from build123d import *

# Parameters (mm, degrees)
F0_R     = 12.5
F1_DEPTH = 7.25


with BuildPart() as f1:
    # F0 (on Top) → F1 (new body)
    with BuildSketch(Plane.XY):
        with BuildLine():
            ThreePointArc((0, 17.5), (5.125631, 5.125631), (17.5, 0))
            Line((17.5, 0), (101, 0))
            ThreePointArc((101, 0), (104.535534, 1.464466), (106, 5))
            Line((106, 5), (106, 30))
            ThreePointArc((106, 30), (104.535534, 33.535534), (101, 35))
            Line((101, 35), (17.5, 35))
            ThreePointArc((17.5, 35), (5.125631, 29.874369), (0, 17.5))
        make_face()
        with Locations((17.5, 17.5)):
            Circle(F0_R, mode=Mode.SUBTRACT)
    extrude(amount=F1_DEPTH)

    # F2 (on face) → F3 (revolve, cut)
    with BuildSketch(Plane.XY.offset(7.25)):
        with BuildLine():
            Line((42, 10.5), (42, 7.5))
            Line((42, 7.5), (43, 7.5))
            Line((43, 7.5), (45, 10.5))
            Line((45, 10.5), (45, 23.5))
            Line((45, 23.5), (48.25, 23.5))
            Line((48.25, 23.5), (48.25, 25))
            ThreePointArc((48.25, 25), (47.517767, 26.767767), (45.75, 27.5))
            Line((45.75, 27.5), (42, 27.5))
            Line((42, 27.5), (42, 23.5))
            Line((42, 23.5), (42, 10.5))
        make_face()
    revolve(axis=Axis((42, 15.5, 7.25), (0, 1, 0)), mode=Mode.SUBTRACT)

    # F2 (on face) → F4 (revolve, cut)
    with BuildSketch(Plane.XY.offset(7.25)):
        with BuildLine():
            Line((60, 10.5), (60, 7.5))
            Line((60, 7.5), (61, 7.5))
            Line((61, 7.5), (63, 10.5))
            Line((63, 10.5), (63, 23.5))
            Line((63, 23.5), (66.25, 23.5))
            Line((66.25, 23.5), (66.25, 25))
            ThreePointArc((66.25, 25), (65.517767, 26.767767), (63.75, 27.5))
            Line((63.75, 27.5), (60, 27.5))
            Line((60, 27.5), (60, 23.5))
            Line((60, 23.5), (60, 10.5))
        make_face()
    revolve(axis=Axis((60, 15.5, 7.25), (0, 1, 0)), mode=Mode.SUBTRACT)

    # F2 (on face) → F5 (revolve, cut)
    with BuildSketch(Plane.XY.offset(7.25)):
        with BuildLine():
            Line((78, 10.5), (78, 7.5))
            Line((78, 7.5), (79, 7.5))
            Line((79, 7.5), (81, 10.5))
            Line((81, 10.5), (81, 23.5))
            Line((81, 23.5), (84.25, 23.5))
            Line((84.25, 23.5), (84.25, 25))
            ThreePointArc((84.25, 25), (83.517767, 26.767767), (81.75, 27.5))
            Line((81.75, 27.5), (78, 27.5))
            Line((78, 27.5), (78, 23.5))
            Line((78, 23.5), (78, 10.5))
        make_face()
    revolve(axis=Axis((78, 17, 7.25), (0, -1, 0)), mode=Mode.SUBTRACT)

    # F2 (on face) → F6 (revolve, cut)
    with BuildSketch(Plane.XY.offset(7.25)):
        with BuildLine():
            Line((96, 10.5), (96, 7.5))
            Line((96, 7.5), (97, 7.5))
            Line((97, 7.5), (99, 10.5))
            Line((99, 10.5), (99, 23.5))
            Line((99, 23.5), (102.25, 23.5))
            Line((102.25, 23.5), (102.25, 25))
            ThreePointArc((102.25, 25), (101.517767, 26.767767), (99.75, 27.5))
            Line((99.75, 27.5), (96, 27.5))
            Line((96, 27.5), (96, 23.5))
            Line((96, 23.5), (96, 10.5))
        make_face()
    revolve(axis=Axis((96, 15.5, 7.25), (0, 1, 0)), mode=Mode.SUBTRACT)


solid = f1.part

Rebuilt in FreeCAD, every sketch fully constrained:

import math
import FreeCAD as App
import Part
import Sketcher

V = App.Vector
Q = App.Units.Quantity

doc = App.newDocument("Part")
body = doc.addObject("PartDesign::Body", "Body")

# Sketch on XY plane
sketch1 = body.newObject("Sketcher::SketchObject", "Sketch")
sketch1.AttachmentSupport = (doc.getObject("XY_Plane"), [""])
sketch1.MapMode = "FlatFace"
sketch1.addGeometry([
    Part.ArcOfCircle(Part.Circle(V(17.5, 17.5, 0), V(0, 0, 1), 17.5), math.radians(180), math.radians(270)),  # 0
    Part.LineSegment(V(17.5, 0, 0), V(101, 0, 0)),  # 1
    Part.ArcOfCircle(Part.Circle(V(101, 5, 0), V(0, 0, 1), 5), math.radians(-90), math.radians(0)),  # 2
    Part.LineSegment(V(106, 5, 0), V(106, 30, 0)),  # 3
    Part.ArcOfCircle(Part.Circle(V(101, 30, 0), V(0, 0, 1), 5), math.radians(0), math.radians(90)),  # 4
    Part.LineSegment(V(101, 35, 0), V(17.5, 35, 0)),  # 5
    Part.ArcOfCircle(Part.Circle(V(17.5, 17.5, 0), V(0, 0, 1), 17.5), math.radians(90), math.radians(180)),  # 6
    Part.Circle(V(17.5, 17.5, 0), V(0, 0, 1), 12.5),  # 7
], False)
sketch1.addConstraint([
    Sketcher.Constraint("Tangent", 0, 2, 1, 1),
    Sketcher.Constraint("Tangent", 1, 2, 2, 1),
    Sketcher.Constraint("Tangent", 2, 2, 3, 1),
    Sketcher.Constraint("Tangent", 3, 2, 4, 1),
    Sketcher.Constraint("Tangent", 4, 2, 5, 1),
    Sketcher.Constraint("Tangent", 5, 2, 6, 1),
    Sketcher.Constraint("Tangent", 6, 2, 0, 1),
    Sketcher.Constraint("Horizontal", 1),
    Sketcher.Constraint("Vertical", 3),
    Sketcher.Constraint("Horizontal", 5),
    Sketcher.Constraint("Coincident", 7, 3, 0, 3),
    Sketcher.Constraint("Equal", 2, 4),
    Sketcher.Constraint("Equal", 0, 6),
    Sketcher.Constraint("PointOnObject", 0, 2, -1),
    Sketcher.Constraint("PointOnObject", 6, 2, -2),
    Sketcher.Constraint("Horizontal", 7, 3, 6, 2),
    Sketcher.Constraint("Diameter", 7, Q("25 mm")),
    Sketcher.Constraint("Radius", 2, Q("5 mm")),
    Sketcher.Constraint("Radius", 0, Q("17.499999 mm")),
    Sketcher.Constraint("DistanceX", 1, 1, 1, 2, Q("83.5 mm")),
])
pad1 = body.newObject("PartDesign::Pad", "Pad")
pad1.Profile = sketch1
pad1.Length = 7.25

# Sketch on XY plane
sketch2 = body.newObject("Sketcher::SketchObject", "Sketch001")
sketch2.AttachmentSupport = (doc.getObject("XY_Plane"), [""])
sketch2.MapMode = "FlatFace"
sketch2.AttachmentOffset = App.Placement(V(0, 0, 7.25), App.Rotation())
sketch2.addGeometry([
    Part.LineSegment(V(42, 7.5, 0), V(43, 7.5, 0)),  # 0
    Part.LineSegment(V(43, 7.5, 0), V(45, 10.5, 0)),  # 1
    Part.LineSegment(V(45, 10.5, 0), V(45, 23.5, 0)),  # 2
    Part.LineSegment(V(45, 23.5, 0), V(48.2, 23.5, 0)),  # 3
    Part.LineSegment(V(48.2, 23.5, 0), V(48.2, 25, 0)),  # 4
    Part.ArcOfCircle(Part.Circle(V(45.8, 25, 0), V(0, 0, 1), 2.5), math.radians(0), math.radians(90)),  # 5
    Part.LineSegment(V(45.8, 27.5, 0), V(42, 27.5, 0)),  # 6
    Part.LineSegment(V(42, 27.5, 0), V(42, 7.5, 0)),  # 7
], False)
sketch2.addGeometry(Part.LineSegment(V(42, 7.5, 0), V(42, 27.5, 0)), True)  # axis
sketch2.addConstraint([
    Sketcher.Constraint("Coincident", 0, 2, 1, 1),
    Sketcher.Constraint("Coincident", 1, 2, 2, 1),
    Sketcher.Constraint("Coincident", 2, 2, 3, 1),
    Sketcher.Constraint("Coincident", 3, 2, 4, 1),
    Sketcher.Constraint("Tangent", 4, 2, 5, 1),
    Sketcher.Constraint("Tangent", 5, 2, 6, 1),
    Sketcher.Constraint("Coincident", 6, 2, 7, 1),
    Sketcher.Constraint("Coincident", 7, 2, 0, 1),
    Sketcher.Constraint("Horizontal", 0),
    Sketcher.Constraint("Vertical", 2),
    Sketcher.Constraint("Horizontal", 3),
    Sketcher.Constraint("Vertical", 4),
    Sketcher.Constraint("Horizontal", 6),
    Sketcher.Constraint("Vertical", 7),
    Sketcher.Constraint("Vertical", 8),
    Sketcher.Constraint("Coincident", 8, 1, 7, 2),
    Sketcher.Constraint("Horizontal", 5, 2, 8, 2),
    Sketcher.Constraint("Radius", 5, Q("2.5 mm")),
    Sketcher.Constraint("DistanceX", 0, 1, 0, 2, Q("1 mm")),
    Sketcher.Constraint("DistanceY", 2, 1, 2, 2, Q("13 mm")),
    Sketcher.Constraint("DistanceY", 7, 2, 7, 1, Q("20 mm")),
    Sketcher.Constraint("DistanceY", 4, 1, 4, 2, Q("1.5 mm")),
    Sketcher.Constraint("DistanceY", -1, 1, 5, 3, Q("25 mm")),
    Sketcher.Constraint("DistanceX", -1, 1, 0, 2, Q("43 mm")),
    Sketcher.Constraint("DistanceX", -1, 1, 1, 2, Q("45 mm")),
    Sketcher.Constraint("DistanceX", 3, 1, 3, 2, Q("3.25 mm")),
])
groove = body.newObject("PartDesign::Groove", "Groove")
groove.Profile = sketch2
groove.ReferenceAxis = (sketch2, ["Axis0"])
groove.Angle = 360

# Sketch on XY plane
sketch3 = body.newObject("Sketcher::SketchObject", "Sketch002")
sketch3.AttachmentSupport = (doc.getObject("XY_Plane"), [""])
sketch3.MapMode = "FlatFace"
sketch3.AttachmentOffset = App.Placement(V(0, 0, 7.25), App.Rotation())
sketch3.addGeometry([
    Part.LineSegment(V(60, 7.5, 0), V(61, 7.5, 0)),  # 0
    Part.LineSegment(V(61, 7.5, 0), V(63, 10.5, 0)),  # 1
    Part.LineSegment(V(63, 10.5, 0), V(63, 23.5, 0)),  # 2
    Part.LineSegment(V(63, 23.5, 0), V(66.2, 23.5, 0)),  # 3
    Part.LineSegment(V(66.2, 23.5, 0), V(66.2, 25, 0)),  # 4
    Part.ArcOfCircle(Part.Circle(V(63.8, 25, 0), V(0, 0, 1), 2.5), math.radians(0), math.radians(90)),  # 5
    Part.LineSegment(V(63.8, 27.5, 0), V(60, 27.5, 0)),  # 6
    Part.LineSegment(V(60, 27.5, 0), V(60, 7.5, 0)),  # 7
], False)
sketch3.addGeometry(Part.LineSegment(V(60, 7.5, 0), V(60, 27.5, 0)), True)  # axis
sketch3.addConstraint([
    Sketcher.Constraint("Coincident", 0, 2, 1, 1),
    Sketcher.Constraint("Coincident", 1, 2, 2, 1),
    Sketcher.Constraint("Coincident", 2, 2, 3, 1),
    Sketcher.Constraint("Coincident", 3, 2, 4, 1),
    Sketcher.Constraint("Tangent", 4, 2, 5, 1),
    Sketcher.Constraint("Tangent", 5, 2, 6, 1),
    Sketcher.Constraint("Coincident", 6, 2, 7, 1),
    Sketcher.Constraint("Coincident", 7, 2, 0, 1),
    Sketcher.Constraint("Horizontal", 0),
    Sketcher.Constraint("Vertical", 2),
    Sketcher.Constraint("Horizontal", 3),
    Sketcher.Constraint("Vertical", 4),
    Sketcher.Constraint("Horizontal", 6),
    Sketcher.Constraint("Vertical", 7),
    Sketcher.Constraint("Vertical", 8),
    Sketcher.Constraint("Coincident", 8, 1, 7, 2),
    Sketcher.Constraint("Horizontal", 5, 2, 8, 2),
    Sketcher.Constraint("Radius", 5, Q("2.5 mm")),
    Sketcher.Constraint("DistanceX", 0, 1, 0, 2, Q("1 mm")),
    Sketcher.Constraint("DistanceY", 2, 1, 2, 2, Q("13 mm")),
    Sketcher.Constraint("DistanceY", 7, 2, 7, 1, Q("20 mm")),
    Sketcher.Constraint("DistanceY", 4, 1, 4, 2, Q("1.5 mm")),
    Sketcher.Constraint("DistanceY", -1, 1, 5, 3, Q("25 mm")),
    Sketcher.Constraint("DistanceX", -1, 1, 0, 2, Q("61 mm")),
    Sketcher.Constraint("DistanceX", -1, 1, 1, 2, Q("63 mm")),
    Sketcher.Constraint("DistanceX", 3, 1, 3, 2, Q("3.25 mm")),
])
groove2 = body.newObject("PartDesign::Groove", "Groove001")
groove2.Profile = sketch3
groove2.ReferenceAxis = (sketch3, ["Axis0"])
groove2.Angle = 360

# Sketch on XY plane
sketch4 = body.newObject("Sketcher::SketchObject", "Sketch003")
sketch4.AttachmentSupport = (doc.getObject("XY_Plane"), [""])
sketch4.MapMode = "FlatFace"
sketch4.AttachmentOffset = App.Placement(V(0, 0, 7.25), App.Rotation())
sketch4.addGeometry([
    Part.LineSegment(V(78, 7.5, 0), V(79, 7.5, 0)),  # 0
    Part.LineSegment(V(79, 7.5, 0), V(81, 10.5, 0)),  # 1
    Part.LineSegment(V(81, 10.5, 0), V(81, 23.5, 0)),  # 2
    Part.LineSegment(V(81, 23.5, 0), V(84.2, 23.5, 0)),  # 3
    Part.LineSegment(V(84.2, 23.5, 0), V(84.2, 25, 0)),  # 4
    Part.ArcOfCircle(Part.Circle(V(81.8, 25, 0), V(0, 0, 1), 2.5), math.radians(0), math.radians(90)),  # 5
    Part.LineSegment(V(81.8, 27.5, 0), V(78, 27.5, 0)),  # 6
    Part.LineSegment(V(78, 27.5, 0), V(78, 7.5, 0)),  # 7
], False)
sketch4.addGeometry(Part.LineSegment(V(78, 27.5, 0), V(78, 7.5, 0)), True)  # axis
sketch4.addConstraint([
    Sketcher.Constraint("Coincident", 0, 2, 1, 1),
    Sketcher.Constraint("Coincident", 1, 2, 2, 1),
    Sketcher.Constraint("Coincident", 2, 2, 3, 1),
    Sketcher.Constraint("Coincident", 3, 2, 4, 1),
    Sketcher.Constraint("Tangent", 4, 2, 5, 1),
    Sketcher.Constraint("Tangent", 5, 2, 6, 1),
    Sketcher.Constraint("Coincident", 6, 2, 7, 1),
    Sketcher.Constraint("Coincident", 7, 2, 0, 1),
    Sketcher.Constraint("Horizontal", 0),
    Sketcher.Constraint("Vertical", 2),
    Sketcher.Constraint("Horizontal", 3),
    Sketcher.Constraint("Vertical", 4),
    Sketcher.Constraint("Horizontal", 6),
    Sketcher.Constraint("Vertical", 7),
    Sketcher.Constraint("Vertical", 8),
    Sketcher.Constraint("Coincident", 8, 1, 6, 2),
    Sketcher.Constraint("Horizontal", 0, 2, 8, 2),
    Sketcher.Constraint("Radius", 5, Q("2.5 mm")),
    Sketcher.Constraint("DistanceX", 0, 1, 0, 2, Q("1 mm")),
    Sketcher.Constraint("DistanceY", 2, 1, 2, 2, Q("13 mm")),
    Sketcher.Constraint("DistanceY", 7, 2, 7, 1, Q("20 mm")),
    Sketcher.Constraint("DistanceY", 4, 1, 4, 2, Q("1.5 mm")),
    Sketcher.Constraint("DistanceY", -1, 1, 5, 3, Q("25 mm")),
    Sketcher.Constraint("DistanceX", -1, 1, 0, 2, Q("79 mm")),
    Sketcher.Constraint("DistanceX", -1, 1, 1, 2, Q("81 mm")),
    Sketcher.Constraint("DistanceX", 3, 1, 3, 2, Q("3.25 mm")),
])
groove3 = body.newObject("PartDesign::Groove", "Groove002")
groove3.Profile = sketch4
groove3.ReferenceAxis = (sketch4, ["Axis0"])
groove3.Angle = 360

# Sketch on XY plane
sketch5 = body.newObject("Sketcher::SketchObject", "Sketch004")
sketch5.AttachmentSupport = (doc.getObject("XY_Plane"), [""])
sketch5.MapMode = "FlatFace"
sketch5.AttachmentOffset = App.Placement(V(0, 0, 7.25), App.Rotation())
sketch5.addGeometry([
    Part.LineSegment(V(96, 7.5, 0), V(97, 7.5, 0)),  # 0
    Part.LineSegment(V(97, 7.5, 0), V(99, 10.5, 0)),  # 1
    Part.LineSegment(V(99, 10.5, 0), V(99, 23.5, 0)),  # 2
    Part.LineSegment(V(99, 23.5, 0), V(102.2, 23.5, 0)),  # 3
    Part.LineSegment(V(102.2, 23.5, 0), V(102.2, 25, 0)),  # 4
    Part.ArcOfCircle(Part.Circle(V(99.8, 25, 0), V(0, 0, 1), 2.5), math.radians(0), math.radians(90)),  # 5
    Part.LineSegment(V(99.8, 27.5, 0), V(96, 27.5, 0)),  # 6
    Part.LineSegment(V(96, 27.5, 0), V(96, 7.5, 0)),  # 7
], False)
sketch5.addGeometry(Part.LineSegment(V(96, 7.5, 0), V(96, 27.5, 0)), True)  # axis
sketch5.addConstraint([
    Sketcher.Constraint("Coincident", 0, 2, 1, 1),
    Sketcher.Constraint("Coincident", 1, 2, 2, 1),
    Sketcher.Constraint("Coincident", 2, 2, 3, 1),
    Sketcher.Constraint("Coincident", 3, 2, 4, 1),
    Sketcher.Constraint("Tangent", 4, 2, 5, 1),
    Sketcher.Constraint("Tangent", 5, 2, 6, 1),
    Sketcher.Constraint("Coincident", 6, 2, 7, 1),
    Sketcher.Constraint("Coincident", 7, 2, 0, 1),
    Sketcher.Constraint("Horizontal", 0),
    Sketcher.Constraint("Vertical", 2),
    Sketcher.Constraint("Horizontal", 3),
    Sketcher.Constraint("Vertical", 4),
    Sketcher.Constraint("Horizontal", 6),
    Sketcher.Constraint("Vertical", 7),
    Sketcher.Constraint("Vertical", 8),
    Sketcher.Constraint("Coincident", 8, 1, 7, 2),
    Sketcher.Constraint("Horizontal", 5, 2, 8, 2),
    Sketcher.Constraint("Radius", 5, Q("2.5 mm")),
    Sketcher.Constraint("DistanceX", 0, 1, 0, 2, Q("1 mm")),
    Sketcher.Constraint("DistanceY", 2, 1, 2, 2, Q("13 mm")),
    Sketcher.Constraint("DistanceY", 7, 2, 7, 1, Q("20 mm")),
    Sketcher.Constraint("DistanceY", 4, 1, 4, 2, Q("1.5 mm")),
    Sketcher.Constraint("DistanceY", -1, 1, 5, 3, Q("25 mm")),
    Sketcher.Constraint("DistanceX", -1, 1, 0, 2, Q("97 mm")),
    Sketcher.Constraint("DistanceX", -1, 1, 1, 2, Q("99 mm")),
    Sketcher.Constraint("DistanceX", 3, 1, 3, 2, Q("3.25 mm")),
])
groove4 = body.newObject("PartDesign::Groove", "Groove003")
groove4.Profile = sketch5
groove4.ReferenceAxis = (sketch5, ["Axis0"])
groove4.Angle = 360

doc.recompute()
